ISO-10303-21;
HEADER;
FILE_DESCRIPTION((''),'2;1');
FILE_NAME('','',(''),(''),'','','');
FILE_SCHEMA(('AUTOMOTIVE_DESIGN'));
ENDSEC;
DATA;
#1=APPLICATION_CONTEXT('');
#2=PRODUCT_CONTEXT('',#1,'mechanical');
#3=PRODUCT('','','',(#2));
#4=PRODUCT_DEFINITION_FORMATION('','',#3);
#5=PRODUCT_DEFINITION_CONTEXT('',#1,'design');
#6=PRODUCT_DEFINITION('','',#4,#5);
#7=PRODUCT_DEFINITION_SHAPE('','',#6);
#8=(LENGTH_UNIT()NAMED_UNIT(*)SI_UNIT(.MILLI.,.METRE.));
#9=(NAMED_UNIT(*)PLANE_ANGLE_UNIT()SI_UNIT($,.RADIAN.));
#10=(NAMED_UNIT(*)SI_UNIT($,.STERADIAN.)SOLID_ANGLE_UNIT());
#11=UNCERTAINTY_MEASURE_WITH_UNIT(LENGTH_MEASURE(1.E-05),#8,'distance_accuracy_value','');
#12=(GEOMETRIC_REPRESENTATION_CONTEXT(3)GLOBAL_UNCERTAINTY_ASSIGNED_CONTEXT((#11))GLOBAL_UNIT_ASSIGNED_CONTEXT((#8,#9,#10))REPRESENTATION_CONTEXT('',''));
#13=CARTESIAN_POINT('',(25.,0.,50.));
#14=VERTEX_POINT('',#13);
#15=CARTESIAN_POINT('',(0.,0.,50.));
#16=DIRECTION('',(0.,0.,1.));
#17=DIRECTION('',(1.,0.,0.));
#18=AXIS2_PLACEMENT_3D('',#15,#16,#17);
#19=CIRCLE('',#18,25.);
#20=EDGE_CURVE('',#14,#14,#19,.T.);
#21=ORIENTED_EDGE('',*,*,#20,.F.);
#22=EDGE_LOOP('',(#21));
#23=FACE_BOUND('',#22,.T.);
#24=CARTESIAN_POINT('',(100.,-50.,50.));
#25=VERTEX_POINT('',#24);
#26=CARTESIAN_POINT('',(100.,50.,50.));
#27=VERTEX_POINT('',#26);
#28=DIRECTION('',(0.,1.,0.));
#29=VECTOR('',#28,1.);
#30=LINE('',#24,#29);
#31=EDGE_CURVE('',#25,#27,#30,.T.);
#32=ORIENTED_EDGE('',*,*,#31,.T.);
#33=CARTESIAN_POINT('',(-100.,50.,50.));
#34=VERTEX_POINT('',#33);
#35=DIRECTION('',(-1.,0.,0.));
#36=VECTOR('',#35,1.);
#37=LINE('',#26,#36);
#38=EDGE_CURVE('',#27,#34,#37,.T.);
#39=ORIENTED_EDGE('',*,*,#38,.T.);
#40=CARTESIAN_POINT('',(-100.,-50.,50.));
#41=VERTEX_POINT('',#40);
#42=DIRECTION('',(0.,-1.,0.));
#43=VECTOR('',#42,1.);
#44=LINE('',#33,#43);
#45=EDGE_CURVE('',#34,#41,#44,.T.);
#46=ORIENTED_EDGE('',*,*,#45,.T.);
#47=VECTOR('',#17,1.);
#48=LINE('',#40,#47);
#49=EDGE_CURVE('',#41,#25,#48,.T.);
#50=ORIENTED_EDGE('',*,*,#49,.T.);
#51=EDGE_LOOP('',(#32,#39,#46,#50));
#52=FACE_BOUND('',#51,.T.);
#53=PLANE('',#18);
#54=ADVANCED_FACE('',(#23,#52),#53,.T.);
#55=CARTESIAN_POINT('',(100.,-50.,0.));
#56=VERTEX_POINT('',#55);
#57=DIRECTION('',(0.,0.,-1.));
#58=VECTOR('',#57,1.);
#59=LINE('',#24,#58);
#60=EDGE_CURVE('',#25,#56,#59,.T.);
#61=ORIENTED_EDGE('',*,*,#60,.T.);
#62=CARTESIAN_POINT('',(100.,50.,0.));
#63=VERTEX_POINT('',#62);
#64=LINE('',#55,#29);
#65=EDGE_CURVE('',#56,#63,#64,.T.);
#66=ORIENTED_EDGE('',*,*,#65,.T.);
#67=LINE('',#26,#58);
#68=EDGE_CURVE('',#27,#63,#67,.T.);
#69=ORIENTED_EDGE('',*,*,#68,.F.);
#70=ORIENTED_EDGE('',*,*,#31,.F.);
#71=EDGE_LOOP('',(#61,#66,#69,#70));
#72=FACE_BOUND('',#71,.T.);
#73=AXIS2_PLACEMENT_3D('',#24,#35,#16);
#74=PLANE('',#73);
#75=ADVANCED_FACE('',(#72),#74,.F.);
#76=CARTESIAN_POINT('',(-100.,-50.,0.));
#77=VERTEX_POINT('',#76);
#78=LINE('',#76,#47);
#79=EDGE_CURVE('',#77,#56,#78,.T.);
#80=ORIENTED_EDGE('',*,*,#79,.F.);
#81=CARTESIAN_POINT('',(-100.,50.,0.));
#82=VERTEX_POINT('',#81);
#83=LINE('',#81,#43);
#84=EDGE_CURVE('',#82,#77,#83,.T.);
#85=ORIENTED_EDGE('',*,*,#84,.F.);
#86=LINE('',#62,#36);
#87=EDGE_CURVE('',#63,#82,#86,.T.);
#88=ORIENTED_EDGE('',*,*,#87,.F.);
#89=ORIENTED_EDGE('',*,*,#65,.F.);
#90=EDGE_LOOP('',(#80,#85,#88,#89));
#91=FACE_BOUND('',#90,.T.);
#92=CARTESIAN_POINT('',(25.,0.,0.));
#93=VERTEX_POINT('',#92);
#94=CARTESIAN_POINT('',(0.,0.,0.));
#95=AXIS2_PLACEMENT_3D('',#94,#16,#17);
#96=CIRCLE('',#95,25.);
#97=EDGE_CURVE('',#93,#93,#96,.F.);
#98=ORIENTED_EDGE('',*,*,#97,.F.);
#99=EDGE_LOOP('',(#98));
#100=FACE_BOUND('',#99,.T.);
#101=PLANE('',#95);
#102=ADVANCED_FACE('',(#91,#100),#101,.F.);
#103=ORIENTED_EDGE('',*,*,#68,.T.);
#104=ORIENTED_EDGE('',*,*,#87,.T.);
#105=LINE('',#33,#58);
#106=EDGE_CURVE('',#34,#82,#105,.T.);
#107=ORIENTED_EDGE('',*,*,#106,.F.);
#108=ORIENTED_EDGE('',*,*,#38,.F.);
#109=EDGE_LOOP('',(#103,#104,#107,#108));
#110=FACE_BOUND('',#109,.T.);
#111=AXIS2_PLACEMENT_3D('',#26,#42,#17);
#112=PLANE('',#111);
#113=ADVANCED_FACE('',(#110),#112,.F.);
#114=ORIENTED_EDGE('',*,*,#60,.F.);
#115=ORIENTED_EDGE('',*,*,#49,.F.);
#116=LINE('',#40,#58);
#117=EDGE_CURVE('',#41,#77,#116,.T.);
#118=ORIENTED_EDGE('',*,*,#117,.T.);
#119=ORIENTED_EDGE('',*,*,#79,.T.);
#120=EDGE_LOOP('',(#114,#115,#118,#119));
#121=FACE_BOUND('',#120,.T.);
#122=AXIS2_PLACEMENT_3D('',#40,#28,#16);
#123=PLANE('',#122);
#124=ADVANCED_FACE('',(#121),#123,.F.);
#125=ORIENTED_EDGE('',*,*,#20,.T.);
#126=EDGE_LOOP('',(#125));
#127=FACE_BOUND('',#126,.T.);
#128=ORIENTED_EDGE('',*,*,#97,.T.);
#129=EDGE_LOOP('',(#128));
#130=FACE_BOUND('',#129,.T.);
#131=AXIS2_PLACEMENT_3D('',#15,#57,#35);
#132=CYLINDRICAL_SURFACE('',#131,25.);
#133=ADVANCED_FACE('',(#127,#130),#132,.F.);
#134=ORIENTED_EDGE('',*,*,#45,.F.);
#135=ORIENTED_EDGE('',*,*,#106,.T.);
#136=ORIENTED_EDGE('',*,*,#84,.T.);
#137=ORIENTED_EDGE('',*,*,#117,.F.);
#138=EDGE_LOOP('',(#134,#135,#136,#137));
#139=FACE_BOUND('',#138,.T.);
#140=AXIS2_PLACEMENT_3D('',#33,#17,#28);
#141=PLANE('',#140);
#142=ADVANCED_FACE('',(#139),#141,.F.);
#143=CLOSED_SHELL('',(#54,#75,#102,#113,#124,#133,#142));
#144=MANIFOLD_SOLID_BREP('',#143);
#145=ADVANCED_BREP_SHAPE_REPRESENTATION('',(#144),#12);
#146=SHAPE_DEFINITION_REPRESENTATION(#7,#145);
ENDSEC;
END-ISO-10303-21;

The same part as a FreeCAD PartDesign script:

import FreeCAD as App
import Part
import Sketcher
from FreeCAD import Vector


def add_polygon(sketch, points):
    """Adds a closed chain of lines whose ends are joined by coincident constraints."""
    first, n = sketch.GeometryCount, len(points)
    for a, b in zip(points, points[1:] + points[:1]):
        sketch.addGeometry(Part.LineSegment(App.Vector(*a, 0), App.Vector(*b, 0)), False)
    for i in range(n):
        sketch.addConstraint(Sketcher.Constraint("Coincident", first + i, 2, first + (i + 1) % n, 1))

doc = App.newDocument("Part")
params = doc.addObject("Spreadsheet::Sheet", "Params")
for row, (alias, value) in enumerate([
    ("sketch1_width", "200 mm"),
    ("sketch1_height", "100 mm"),
    ("pad1_length", "50 mm"),
    ("sketch2_diameter", "50 mm"),
], start=1):
    params.set(f"A{row}", alias)
    params.set(f"B{row}", "=" + value)
    params.setAlias(f"B{row}", alias)

body = doc.addObject("PartDesign::Body", "Body")

sketch1 = doc.addObject("Sketcher::SketchObject", "Sketch")
body.addObject(sketch1)
sketch1.AttachmentSupport = (doc.XY_Plane, [""])
sketch1.MapMode = "FlatFace"
add_polygon(sketch1, [(-100, 50), (-100, -50), (100, -50), (100, 50)])
sketch1.addConstraint(Sketcher.Constraint("Vertical", 0))
sketch1.addConstraint(Sketcher.Constraint("Horizontal", 1))
sketch1.addConstraint(Sketcher.Constraint("Vertical", 2))
sketch1.addConstraint(Sketcher.Constraint("Horizontal", 3))
sketch1.addConstraint(Sketcher.Constraint("Symmetric", 0, 2, 2, 2, -1, 1))
sketch1.addConstraint(Sketcher.Constraint("DistanceX", 1, 1, 1, 2, 200.0))
sketch1.addConstraint(Sketcher.Constraint("DistanceY", 0, 2, 0, 1, 100.0))
sketch1.setExpression("Constraints[9]", "Params.sketch1_width")
sketch1.setExpression("Constraints[10]", "Params.sketch1_height")
pad1 = doc.addObject("PartDesign::Pad", "Pad")
body.addObject(pad1)
pad1.Profile = sketch1
pad1.setExpression("Length", "Params.pad1_length")

sketch2 = doc.addObject("Sketcher::SketchObject", "Sketch001")
body.addObject(sketch2)
sketch2.AttachmentSupport = (doc.XY_Plane, [""])
sketch2.MapMode = "FlatFace"
sketch2.addGeometry(Part.Circle(Vector(0, 0, 0), Vector(0, 0, 1), 25), False)
sketch2.addConstraint(Sketcher.Constraint("Coincident", 0, 3, -1, 1))
sketch2.addConstraint(Sketcher.Constraint("Diameter", 0, 50.0))
sketch2.setExpression("Constraints[1]", "Params.sketch2_diameter")
pocket1 = doc.addObject("PartDesign::Pocket", "Pocket")
body.addObject(pocket1)
pocket1.Profile = sketch2
pocket1.Type = "ThroughAll"
pocket1.Midplane = True

doc.recompute()
